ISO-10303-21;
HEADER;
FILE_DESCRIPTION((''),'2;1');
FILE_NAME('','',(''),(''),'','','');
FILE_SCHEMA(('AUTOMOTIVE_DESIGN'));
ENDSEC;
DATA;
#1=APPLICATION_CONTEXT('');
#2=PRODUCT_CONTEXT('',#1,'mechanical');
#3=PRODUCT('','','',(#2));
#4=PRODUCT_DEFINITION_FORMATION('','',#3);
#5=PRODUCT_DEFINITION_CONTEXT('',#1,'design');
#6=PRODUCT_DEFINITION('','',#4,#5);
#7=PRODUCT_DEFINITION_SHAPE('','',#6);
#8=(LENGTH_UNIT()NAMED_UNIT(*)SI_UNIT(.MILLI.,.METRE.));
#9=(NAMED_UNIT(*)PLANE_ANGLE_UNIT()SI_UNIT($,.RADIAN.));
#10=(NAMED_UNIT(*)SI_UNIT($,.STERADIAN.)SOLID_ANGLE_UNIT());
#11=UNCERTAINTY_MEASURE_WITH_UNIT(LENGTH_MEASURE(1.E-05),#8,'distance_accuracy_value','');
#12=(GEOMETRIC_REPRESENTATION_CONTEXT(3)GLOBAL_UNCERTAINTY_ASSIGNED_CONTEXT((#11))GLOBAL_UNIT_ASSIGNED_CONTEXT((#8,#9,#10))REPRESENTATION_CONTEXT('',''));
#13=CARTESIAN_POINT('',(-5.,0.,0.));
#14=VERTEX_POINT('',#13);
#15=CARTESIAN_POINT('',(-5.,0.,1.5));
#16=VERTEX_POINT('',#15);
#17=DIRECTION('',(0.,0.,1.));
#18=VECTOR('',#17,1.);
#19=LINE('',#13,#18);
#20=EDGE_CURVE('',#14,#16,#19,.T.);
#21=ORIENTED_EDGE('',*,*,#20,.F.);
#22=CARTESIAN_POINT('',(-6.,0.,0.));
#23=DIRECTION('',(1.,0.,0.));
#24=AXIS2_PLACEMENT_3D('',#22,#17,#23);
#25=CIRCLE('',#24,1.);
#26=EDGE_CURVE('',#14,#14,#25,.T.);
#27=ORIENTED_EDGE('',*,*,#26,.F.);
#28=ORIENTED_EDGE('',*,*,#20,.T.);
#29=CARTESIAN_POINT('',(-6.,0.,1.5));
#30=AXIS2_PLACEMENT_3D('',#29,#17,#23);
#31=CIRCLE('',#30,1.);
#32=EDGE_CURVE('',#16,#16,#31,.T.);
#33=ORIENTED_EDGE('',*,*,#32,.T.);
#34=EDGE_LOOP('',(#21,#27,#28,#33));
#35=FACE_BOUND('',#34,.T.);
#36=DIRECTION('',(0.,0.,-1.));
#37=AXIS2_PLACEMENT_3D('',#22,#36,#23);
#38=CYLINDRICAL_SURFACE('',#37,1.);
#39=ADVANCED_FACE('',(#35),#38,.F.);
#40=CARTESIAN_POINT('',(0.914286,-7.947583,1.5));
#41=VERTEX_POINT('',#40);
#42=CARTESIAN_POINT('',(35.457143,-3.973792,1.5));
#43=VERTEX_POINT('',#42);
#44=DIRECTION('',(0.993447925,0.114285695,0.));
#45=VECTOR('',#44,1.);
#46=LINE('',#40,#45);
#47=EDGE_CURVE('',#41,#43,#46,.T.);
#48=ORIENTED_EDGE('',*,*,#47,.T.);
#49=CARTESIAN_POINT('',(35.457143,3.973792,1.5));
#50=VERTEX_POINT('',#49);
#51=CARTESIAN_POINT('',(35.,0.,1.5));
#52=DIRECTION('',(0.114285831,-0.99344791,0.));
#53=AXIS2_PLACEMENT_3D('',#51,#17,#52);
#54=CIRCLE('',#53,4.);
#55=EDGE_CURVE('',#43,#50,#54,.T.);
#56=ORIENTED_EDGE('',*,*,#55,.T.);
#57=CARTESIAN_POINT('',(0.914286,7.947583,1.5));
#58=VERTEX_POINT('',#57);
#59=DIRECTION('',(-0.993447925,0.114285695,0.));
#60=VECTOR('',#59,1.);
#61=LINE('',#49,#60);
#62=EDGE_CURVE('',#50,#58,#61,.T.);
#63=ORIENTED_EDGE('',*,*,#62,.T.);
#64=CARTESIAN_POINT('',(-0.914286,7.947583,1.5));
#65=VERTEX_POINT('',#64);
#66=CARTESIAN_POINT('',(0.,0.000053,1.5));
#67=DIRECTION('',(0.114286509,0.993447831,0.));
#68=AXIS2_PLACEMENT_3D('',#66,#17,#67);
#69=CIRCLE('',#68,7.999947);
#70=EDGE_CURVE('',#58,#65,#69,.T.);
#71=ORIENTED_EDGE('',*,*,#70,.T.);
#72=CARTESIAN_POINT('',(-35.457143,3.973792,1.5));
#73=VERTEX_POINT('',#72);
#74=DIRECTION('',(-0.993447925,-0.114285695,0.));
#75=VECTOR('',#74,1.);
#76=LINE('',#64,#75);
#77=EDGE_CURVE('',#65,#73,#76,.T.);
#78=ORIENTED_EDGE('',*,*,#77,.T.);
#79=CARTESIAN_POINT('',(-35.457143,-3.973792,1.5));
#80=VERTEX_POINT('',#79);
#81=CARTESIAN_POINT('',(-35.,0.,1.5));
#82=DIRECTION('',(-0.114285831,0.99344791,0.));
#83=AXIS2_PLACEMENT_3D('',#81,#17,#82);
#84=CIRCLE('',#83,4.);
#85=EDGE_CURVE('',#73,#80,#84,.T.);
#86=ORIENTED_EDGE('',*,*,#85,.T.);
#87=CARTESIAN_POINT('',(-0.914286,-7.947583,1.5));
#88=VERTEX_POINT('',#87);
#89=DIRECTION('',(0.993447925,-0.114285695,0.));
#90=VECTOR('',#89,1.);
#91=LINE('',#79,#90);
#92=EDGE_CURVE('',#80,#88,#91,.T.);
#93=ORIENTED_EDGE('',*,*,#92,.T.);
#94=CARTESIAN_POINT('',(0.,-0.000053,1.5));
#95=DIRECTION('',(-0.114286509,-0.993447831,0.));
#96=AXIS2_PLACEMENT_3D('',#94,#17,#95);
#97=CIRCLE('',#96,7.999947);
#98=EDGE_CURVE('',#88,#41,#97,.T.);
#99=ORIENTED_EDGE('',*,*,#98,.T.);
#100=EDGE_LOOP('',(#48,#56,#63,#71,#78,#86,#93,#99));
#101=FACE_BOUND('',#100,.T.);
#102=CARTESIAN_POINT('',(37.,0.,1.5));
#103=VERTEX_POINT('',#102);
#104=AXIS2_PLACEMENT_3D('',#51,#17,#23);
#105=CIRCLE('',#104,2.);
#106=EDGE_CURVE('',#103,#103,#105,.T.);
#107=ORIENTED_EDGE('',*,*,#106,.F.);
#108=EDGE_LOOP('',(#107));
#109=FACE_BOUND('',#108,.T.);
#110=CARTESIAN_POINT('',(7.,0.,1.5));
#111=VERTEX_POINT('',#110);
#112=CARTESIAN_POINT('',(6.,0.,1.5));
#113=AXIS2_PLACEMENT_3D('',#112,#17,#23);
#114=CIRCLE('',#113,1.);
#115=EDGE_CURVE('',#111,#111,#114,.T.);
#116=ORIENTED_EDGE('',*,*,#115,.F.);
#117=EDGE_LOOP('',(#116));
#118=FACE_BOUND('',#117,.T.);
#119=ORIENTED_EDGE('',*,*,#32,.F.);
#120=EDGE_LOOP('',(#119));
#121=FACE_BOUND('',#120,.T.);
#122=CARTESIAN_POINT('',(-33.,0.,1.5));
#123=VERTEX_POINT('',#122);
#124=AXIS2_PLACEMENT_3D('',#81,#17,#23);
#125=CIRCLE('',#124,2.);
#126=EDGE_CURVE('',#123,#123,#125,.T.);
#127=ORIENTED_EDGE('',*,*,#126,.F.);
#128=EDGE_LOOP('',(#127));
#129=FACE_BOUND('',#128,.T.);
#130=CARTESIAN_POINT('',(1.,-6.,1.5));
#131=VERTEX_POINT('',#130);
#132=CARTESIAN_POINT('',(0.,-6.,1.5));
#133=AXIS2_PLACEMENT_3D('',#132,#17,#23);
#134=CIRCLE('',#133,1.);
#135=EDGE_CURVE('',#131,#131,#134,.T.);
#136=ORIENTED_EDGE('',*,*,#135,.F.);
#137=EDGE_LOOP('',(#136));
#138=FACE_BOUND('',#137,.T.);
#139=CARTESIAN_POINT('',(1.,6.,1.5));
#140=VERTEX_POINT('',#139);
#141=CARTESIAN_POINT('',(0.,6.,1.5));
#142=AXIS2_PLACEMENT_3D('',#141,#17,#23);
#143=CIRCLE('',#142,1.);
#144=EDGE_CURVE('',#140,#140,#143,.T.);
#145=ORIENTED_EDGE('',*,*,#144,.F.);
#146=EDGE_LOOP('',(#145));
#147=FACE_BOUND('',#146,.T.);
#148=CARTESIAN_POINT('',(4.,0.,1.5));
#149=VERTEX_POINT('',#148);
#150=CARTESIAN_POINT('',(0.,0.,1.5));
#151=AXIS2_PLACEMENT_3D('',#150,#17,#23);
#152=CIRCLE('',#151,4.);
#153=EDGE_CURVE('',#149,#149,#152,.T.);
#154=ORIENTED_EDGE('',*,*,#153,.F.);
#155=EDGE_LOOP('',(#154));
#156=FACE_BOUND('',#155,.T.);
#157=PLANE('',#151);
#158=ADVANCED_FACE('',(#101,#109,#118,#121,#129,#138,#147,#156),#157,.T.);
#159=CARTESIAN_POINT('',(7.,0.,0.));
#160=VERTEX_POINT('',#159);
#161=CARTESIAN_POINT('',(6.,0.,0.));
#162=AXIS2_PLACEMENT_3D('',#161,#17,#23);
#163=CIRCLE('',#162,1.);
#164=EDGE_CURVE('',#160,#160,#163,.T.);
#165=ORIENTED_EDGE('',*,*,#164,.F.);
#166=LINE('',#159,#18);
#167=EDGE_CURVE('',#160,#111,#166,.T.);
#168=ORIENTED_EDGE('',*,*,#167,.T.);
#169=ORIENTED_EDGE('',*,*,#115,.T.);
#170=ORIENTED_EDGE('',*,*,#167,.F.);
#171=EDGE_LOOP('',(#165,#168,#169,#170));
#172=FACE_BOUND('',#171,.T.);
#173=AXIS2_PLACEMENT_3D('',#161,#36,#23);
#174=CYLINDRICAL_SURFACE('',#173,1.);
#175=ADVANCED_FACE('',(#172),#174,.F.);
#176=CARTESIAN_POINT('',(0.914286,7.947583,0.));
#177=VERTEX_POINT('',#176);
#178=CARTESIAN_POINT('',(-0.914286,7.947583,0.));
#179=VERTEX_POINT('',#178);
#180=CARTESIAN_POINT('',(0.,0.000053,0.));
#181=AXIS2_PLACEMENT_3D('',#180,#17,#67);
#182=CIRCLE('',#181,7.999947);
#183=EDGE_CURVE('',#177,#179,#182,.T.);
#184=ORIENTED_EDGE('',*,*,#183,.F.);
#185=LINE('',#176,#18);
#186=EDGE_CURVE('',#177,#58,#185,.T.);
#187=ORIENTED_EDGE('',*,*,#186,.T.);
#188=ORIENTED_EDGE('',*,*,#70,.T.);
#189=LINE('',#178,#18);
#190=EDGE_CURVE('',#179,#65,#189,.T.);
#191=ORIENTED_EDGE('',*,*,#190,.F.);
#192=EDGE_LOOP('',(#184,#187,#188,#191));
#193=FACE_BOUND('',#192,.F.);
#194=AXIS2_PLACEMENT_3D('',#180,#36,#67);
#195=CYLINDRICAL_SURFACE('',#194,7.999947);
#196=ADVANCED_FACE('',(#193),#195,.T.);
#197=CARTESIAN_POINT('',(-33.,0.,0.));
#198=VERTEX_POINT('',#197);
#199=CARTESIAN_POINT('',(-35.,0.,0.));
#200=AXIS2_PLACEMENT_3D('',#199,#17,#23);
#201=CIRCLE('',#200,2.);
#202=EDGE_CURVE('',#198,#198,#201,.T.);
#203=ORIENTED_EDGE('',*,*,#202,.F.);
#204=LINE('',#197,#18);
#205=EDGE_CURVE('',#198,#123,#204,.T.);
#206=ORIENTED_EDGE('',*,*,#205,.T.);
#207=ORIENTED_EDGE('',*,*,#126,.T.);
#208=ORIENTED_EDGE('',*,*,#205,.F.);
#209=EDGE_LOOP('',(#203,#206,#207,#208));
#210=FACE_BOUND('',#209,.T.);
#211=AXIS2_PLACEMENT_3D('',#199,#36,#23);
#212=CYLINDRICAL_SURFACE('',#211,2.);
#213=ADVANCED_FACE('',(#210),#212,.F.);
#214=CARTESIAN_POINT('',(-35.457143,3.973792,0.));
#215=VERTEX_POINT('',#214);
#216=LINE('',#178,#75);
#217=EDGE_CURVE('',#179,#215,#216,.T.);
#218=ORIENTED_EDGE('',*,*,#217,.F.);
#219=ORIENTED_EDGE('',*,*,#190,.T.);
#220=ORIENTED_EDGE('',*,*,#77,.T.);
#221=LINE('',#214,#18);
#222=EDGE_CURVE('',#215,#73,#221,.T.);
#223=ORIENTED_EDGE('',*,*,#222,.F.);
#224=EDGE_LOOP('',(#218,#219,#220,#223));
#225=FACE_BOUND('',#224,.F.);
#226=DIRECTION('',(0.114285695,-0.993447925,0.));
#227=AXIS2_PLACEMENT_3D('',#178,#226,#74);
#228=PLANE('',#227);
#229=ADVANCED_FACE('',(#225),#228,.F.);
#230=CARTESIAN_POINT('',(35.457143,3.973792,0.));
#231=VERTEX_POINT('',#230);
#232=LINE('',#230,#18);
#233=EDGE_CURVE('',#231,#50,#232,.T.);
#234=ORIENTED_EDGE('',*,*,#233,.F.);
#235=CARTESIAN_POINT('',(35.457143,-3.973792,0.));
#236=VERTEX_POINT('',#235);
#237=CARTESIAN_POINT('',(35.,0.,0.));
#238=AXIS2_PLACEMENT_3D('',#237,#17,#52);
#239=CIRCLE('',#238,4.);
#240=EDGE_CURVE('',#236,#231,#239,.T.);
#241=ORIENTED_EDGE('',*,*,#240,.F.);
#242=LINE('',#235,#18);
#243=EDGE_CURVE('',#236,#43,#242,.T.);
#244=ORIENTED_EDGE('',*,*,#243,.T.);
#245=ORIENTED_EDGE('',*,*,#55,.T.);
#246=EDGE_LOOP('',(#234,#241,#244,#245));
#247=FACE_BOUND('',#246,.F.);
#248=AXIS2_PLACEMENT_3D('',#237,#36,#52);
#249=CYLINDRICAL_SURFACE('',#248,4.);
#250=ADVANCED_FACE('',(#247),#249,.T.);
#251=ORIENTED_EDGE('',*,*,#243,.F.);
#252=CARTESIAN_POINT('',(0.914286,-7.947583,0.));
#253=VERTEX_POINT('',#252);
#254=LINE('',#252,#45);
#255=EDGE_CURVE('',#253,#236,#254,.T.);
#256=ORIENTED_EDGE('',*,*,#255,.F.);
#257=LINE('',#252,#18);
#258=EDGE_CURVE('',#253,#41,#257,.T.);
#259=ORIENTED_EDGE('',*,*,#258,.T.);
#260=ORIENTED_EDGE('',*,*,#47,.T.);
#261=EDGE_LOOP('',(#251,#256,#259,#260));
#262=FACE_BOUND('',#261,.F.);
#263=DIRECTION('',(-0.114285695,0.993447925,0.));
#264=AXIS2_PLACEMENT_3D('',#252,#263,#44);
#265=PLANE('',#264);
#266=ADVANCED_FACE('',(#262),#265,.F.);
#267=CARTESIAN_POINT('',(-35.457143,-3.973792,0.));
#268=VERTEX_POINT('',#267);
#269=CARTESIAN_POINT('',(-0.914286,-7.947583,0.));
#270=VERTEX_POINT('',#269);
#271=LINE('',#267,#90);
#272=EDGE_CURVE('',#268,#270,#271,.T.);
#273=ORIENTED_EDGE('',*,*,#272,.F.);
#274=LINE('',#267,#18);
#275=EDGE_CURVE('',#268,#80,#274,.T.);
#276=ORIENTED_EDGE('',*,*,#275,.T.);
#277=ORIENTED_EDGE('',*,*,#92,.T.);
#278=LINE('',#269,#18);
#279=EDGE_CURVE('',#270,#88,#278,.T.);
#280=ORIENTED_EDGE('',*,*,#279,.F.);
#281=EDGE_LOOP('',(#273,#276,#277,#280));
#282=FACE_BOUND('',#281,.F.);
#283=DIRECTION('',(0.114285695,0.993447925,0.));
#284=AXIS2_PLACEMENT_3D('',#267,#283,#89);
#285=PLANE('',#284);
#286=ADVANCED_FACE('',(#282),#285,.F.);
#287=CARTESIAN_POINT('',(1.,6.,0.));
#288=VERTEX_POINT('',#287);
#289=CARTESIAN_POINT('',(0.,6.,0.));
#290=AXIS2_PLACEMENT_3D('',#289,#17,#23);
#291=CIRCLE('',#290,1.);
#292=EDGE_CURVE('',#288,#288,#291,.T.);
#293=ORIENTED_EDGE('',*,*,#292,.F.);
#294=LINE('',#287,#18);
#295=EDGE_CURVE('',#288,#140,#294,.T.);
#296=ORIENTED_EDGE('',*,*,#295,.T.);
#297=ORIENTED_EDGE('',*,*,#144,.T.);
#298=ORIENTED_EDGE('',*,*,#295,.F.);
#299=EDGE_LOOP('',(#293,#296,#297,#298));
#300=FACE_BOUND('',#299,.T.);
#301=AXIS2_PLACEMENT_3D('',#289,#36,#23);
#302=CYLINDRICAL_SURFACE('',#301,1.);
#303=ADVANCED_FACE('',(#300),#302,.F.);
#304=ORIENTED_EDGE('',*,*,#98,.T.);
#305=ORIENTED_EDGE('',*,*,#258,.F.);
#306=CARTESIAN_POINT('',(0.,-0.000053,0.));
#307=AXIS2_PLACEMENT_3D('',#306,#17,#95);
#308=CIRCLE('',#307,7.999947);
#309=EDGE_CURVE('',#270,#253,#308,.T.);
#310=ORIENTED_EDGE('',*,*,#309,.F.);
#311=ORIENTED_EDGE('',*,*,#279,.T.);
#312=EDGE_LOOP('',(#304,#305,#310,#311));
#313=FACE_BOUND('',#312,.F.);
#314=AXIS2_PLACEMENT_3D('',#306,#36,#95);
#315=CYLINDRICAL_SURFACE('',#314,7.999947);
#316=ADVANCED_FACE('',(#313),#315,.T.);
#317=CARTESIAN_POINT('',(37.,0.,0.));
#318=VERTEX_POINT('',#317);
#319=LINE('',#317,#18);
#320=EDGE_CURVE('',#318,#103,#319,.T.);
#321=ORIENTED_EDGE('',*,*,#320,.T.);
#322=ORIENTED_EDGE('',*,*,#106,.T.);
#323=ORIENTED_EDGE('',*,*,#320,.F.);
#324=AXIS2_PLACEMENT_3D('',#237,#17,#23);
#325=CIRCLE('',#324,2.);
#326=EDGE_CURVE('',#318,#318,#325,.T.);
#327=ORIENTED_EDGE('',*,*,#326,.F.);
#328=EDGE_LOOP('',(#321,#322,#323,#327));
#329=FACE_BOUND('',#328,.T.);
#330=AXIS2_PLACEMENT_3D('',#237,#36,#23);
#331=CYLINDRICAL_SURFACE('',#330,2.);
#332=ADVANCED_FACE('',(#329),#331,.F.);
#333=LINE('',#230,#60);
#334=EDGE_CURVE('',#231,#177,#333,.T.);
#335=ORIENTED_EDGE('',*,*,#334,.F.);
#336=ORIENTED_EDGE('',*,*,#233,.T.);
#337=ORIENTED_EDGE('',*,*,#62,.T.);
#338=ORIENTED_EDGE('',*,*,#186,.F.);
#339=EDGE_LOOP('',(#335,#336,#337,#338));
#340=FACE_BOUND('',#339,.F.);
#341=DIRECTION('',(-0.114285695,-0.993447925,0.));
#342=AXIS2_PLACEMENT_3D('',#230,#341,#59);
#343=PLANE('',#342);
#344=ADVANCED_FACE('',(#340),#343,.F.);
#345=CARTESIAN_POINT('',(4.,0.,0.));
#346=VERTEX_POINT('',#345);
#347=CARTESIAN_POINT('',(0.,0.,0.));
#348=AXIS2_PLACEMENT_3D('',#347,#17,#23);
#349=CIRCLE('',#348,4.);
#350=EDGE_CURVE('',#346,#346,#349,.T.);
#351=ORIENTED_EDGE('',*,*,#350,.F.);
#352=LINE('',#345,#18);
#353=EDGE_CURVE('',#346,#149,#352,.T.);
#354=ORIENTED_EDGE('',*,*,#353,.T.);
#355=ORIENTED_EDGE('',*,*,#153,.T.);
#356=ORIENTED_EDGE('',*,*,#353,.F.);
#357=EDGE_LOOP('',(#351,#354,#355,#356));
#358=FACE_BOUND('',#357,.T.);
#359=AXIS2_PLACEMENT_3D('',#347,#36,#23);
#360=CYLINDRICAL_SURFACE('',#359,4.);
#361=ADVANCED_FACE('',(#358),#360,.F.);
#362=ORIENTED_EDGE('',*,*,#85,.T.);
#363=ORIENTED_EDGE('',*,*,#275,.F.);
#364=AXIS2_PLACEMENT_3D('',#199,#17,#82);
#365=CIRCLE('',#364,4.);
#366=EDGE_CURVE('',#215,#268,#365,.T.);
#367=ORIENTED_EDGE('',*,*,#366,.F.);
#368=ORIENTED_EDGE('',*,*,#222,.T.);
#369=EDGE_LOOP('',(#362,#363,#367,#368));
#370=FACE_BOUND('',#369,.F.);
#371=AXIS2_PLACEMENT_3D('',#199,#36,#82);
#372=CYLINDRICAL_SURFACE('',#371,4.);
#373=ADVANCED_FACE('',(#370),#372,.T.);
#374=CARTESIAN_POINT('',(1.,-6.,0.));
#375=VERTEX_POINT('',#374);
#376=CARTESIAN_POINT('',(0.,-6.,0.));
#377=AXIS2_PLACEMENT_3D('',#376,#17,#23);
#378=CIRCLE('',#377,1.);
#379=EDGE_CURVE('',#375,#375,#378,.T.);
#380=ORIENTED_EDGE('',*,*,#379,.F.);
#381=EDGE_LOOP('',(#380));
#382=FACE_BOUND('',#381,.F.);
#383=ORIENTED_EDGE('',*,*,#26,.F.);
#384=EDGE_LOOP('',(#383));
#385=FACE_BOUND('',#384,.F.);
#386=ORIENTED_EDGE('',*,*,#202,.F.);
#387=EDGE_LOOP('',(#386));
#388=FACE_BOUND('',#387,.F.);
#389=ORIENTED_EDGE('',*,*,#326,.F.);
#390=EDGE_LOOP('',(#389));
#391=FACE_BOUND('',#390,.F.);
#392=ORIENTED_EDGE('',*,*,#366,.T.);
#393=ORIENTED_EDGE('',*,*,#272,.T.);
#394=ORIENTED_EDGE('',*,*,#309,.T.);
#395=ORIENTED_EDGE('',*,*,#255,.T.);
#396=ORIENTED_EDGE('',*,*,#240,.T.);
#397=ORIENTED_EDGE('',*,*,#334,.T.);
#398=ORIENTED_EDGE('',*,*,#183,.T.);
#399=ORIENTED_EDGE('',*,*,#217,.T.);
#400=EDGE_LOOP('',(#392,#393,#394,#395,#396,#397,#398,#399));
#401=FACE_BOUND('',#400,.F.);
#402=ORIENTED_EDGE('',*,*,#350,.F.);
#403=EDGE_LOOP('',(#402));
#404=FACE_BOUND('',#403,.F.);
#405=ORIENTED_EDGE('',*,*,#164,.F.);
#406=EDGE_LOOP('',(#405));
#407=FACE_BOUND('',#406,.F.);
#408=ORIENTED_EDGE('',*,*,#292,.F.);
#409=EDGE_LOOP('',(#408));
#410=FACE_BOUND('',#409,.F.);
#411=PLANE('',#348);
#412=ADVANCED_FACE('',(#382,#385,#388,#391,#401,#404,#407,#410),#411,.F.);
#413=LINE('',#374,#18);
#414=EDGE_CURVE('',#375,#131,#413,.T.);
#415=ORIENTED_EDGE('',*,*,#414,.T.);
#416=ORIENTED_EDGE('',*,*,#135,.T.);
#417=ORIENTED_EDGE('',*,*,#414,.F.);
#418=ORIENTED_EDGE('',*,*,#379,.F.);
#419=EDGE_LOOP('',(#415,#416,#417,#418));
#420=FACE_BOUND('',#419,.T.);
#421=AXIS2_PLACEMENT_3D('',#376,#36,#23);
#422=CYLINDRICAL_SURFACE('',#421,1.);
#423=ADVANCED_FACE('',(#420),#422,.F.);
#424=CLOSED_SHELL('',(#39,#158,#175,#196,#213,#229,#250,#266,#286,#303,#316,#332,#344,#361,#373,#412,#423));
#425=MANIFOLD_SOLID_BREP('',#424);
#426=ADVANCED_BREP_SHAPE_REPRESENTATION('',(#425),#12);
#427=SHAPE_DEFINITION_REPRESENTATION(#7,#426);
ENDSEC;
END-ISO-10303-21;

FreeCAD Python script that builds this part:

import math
import FreeCAD as App
import Part
import Sketcher

doc = App.newDocument("Part")
params = doc.addObject("Spreadsheet::Sheet", "Params")
for row, (alias, value) in enumerate([
    ("sketch1_diameter", "2 mm"),
    ("sketch1_diameter2", "4 mm"),
    ("sketch1_diameter3", "2 mm"),
    ("sketch1_diameter4", "8 mm"),
    ("sketch1_diameter5", "2 mm"),
    ("pad1_length", "1.5 mm"),
], start=1):
    params.set(f"A{row}", alias)
    params.set(f"B{row}", "=" + value)
    params.setAlias(f"B{row}", alias)

body = doc.addObject("PartDesign::Body", "Body")

# Sketch on XY plane
sketch1 = body.newObject("Sketcher::SketchObject", "Sketch")
sketch1.AttachmentSupport = (doc.getObject("XY_Plane"), [""])
sketch1.MapMode = "FlatFace"
sketch1.addGeometry([
    Part.LineSegment(App.Vector(0.914286, -7.947583, 0), App.Vector(35.457143, -3.973792, 0)),  # 0
    Part.ArcOfCircle(Part.Circle(App.Vector(35, 0, 0), App.Vector(0, 0, 1), 4), math.radians(-83.437565), math.radians(83.437565)),  # 1
    Part.LineSegment(App.Vector(35.457143, 3.973792, 0), App.Vector(0.914286, 7.947583, 0)),  # 2
    Part.ArcOfCircle(Part.Circle(App.Vector(0, 0.000053, 0), App.Vector(0, 0, 1), 7.999947), math.radians(83.437526), math.radians(96.562474)),  # 3
    Part.LineSegment(App.Vector(-0.914286, 7.947583, 0), App.Vector(-35.457143, 3.973792, 0)),  # 4
    Part.ArcOfCircle(Part.Circle(App.Vector(-35, 0, 0), App.Vector(0, 0, 1), 4), math.radians(96.562435), math.radians(263.437565)),  # 5
    Part.LineSegment(App.Vector(-35.457143, -3.973792, 0), App.Vector(-0.914286, -7.947583, 0)),  # 6
    Part.ArcOfCircle(Part.Circle(App.Vector(0, -0.000053, 0), App.Vector(0, 0, 1), 7.999947), math.radians(-96.562474), math.radians(-83.437526)),  # 7
    Part.Circle(App.Vector(0, -6, 0), App.Vector(0, 0, 1), 1),  # 8
    Part.Circle(App.Vector(-35, 0, 0), App.Vector(0, 0, 1), 2),  # 9
    Part.Circle(App.Vector(-6, 0, 0), App.Vector(0, 0, 1), 1),  # 10
    Part.Circle(App.Vector(0, 0, 0), App.Vector(0, 0, 1), 4),  # 11
    Part.Circle(App.Vector(6, 0, 0), App.Vector(0, 0, 1), 1),  # 12
    Part.Circle(App.Vector(35, 0, 0), App.Vector(0, 0, 1), 2),  # 13
    Part.Circle(App.Vector(0, 6, 0), App.Vector(0, 0, 1), 1),  # 14
], False)
sketch1.addConstraint([
    Sketcher.Constraint("Coincident", 0, 2, 1, 1),
    Sketcher.Constraint("Coincident", 1, 2, 2, 1),
    Sketcher.Constraint("Coincident", 2, 2, 3, 1),
    Sketcher.Constraint("Coincident", 3, 2, 4, 1),
    Sketcher.Constraint("Coincident", 4, 2, 5, 1),
    Sketcher.Constraint("Coincident", 5, 2, 6, 1),
    Sketcher.Constraint("Coincident", 6, 2, 7, 1),
    Sketcher.Constraint("Coincident", 7, 2, 0, 1),
    Sketcher.Constraint("Coincident", 11, 3, -1, 1),
    Sketcher.Constraint("Coincident", 9, 3, 5, 3),
    Sketcher.Constraint("Coincident", 13, 3, 1, 3),
    Sketcher.Constraint("PointOnObject", 1, 3, -1),
    Sketcher.Constraint("PointOnObject", 3, 3, -2),
    Sketcher.Constraint("PointOnObject", 5, 3, -1),
    Sketcher.Constraint("PointOnObject", 7, 3, -2),
    Sketcher.Constraint("PointOnObject", 8, 3, -2),
    Sketcher.Constraint("PointOnObject", 10, 3, -1),
    Sketcher.Constraint("PointOnObject", 12, 3, -1),
    Sketcher.Constraint("PointOnObject", 14, 3, -2),
    Sketcher.Constraint("Diameter", 8, 2.0),
    Sketcher.Constraint("Diameter", 9, 4.0),
    Sketcher.Constraint("Diameter", 10, 2.0),
    Sketcher.Constraint("Diameter", 11, 8.0),
    Sketcher.Constraint("Diameter", 12, 2.0),
    Sketcher.Constraint("Diameter", 13, 4.0),
    Sketcher.Constraint("Diameter", 14, 2.0),
    Sketcher.Constraint("Radius", 1, 4.0),
    Sketcher.Constraint("Radius", 5, 4.0),
    Sketcher.Constraint("DistanceX", -1, 1, 1, 3, 35.0),
    Sketcher.Constraint("DistanceX", 5, 3, -1, 1, 35.0),
    Sketcher.Constraint("DistanceY", 8, 3, -1, 1, 6.0),
    Sketcher.Constraint("DistanceX", 10, 3, -1, 1, 6.0),
    Sketcher.Constraint("DistanceX", -1, 1, 12, 3, 6.0),
    Sketcher.Constraint("DistanceY", -1, 1, 14, 3, 6.0),
    Sketcher.Constraint("Radius", 3, 7.999947),
    Sketcher.Constraint("Radius", 7, 7.999947),
    Sketcher.Constraint("DistanceY", 0, 2, -1, 1, 3.973792),
    Sketcher.Constraint("DistanceY", -1, 1, 1, 2, 3.973792),
    Sketcher.Constraint("DistanceY", -1, 1, 4, 2, 3.973792),
    Sketcher.Constraint("DistanceY", 5, 2, -1, 1, 3.973792),
    Sketcher.Constraint("DistanceY", 0, 2, 7, 3, 3.973739),
    Sketcher.Constraint("DistanceY", 3, 3, 2, 2, 7.94753),
    Sketcher.Constraint("DistanceX", 3, 2, 2, 2, 1.828572),
    Sketcher.Constraint("DistanceY", 4, 2, 3, 2, 3.973791),
    Sketcher.Constraint("DistanceY", 6, 2, 7, 3, 7.94753),
    Sketcher.Constraint("DistanceX", 6, 2, 7, 2, 1.828572),
])
sketch1.setExpression("Constraints[19]", "Params.sketch1_diameter")
sketch1.setExpression("Constraints[20]", "Params.sketch1_diameter2")
sketch1.setExpression("Constraints[21]", "Params.sketch1_diameter3")
sketch1.setExpression("Constraints[22]", "Params.sketch1_diameter4")
sketch1.setExpression("Constraints[23]", "Params.sketch1_diameter5")
pad1 = body.newObject("PartDesign::Pad", "Pad")
pad1.Profile = sketch1
pad1.setExpression("Length", "Params.pad1_length")

doc.recompute()
